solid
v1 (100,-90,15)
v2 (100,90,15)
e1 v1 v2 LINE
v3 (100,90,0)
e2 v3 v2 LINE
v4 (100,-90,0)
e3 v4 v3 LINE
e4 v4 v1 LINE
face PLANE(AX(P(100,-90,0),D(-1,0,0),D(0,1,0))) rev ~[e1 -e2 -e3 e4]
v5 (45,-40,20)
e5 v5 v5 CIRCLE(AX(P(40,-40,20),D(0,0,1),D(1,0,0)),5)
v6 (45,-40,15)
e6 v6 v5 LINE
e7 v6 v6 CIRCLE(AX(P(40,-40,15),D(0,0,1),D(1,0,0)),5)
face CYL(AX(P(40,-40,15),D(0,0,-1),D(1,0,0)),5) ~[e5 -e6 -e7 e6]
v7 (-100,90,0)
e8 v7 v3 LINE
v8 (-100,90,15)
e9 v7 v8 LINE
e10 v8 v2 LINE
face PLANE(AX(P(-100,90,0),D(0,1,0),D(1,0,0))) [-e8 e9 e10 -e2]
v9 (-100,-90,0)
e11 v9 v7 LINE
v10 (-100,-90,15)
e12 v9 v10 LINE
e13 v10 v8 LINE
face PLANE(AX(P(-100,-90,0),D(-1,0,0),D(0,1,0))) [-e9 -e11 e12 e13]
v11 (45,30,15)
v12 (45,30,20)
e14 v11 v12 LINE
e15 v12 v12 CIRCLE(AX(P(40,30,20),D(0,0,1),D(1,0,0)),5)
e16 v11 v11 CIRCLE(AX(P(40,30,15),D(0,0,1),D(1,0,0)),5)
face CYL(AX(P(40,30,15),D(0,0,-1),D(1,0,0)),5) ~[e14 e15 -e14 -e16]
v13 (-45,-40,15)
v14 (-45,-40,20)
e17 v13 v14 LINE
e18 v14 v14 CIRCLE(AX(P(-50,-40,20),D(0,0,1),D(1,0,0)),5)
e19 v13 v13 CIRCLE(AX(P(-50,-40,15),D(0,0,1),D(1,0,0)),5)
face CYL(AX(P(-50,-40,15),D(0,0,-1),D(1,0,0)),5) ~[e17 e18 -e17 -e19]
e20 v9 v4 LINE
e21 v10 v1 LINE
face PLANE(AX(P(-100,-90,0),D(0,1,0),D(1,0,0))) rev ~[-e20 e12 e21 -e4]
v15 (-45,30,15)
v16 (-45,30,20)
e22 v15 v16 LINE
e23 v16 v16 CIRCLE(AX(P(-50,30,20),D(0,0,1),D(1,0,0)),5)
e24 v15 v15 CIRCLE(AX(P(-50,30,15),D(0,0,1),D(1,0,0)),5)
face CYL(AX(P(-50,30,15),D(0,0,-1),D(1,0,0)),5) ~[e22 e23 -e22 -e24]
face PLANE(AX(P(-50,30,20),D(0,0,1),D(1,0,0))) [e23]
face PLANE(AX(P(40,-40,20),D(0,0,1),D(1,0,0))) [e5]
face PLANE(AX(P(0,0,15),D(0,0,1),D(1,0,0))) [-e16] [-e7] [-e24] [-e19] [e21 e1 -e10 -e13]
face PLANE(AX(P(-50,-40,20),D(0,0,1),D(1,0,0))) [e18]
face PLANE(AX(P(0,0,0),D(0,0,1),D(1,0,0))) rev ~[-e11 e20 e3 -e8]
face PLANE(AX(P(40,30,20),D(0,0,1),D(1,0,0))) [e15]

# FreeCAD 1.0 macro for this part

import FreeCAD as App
import Part
import Sketcher


def add_polygon(sketch, points):
    """Adds a closed chain of lines whose ends are joined by coincident constraints."""
    first, n = sketch.GeometryCount, len(points)
    for a, b in zip(points, points[1:] + points[:1]):
        sketch.addGeometry(Part.LineSegment(App.Vector(*a, 0), App.Vector(*b, 0)), False)
    for i in range(n):
        sketch.addConstraint(Sketcher.Constraint("Coincident", first + i, 2, first + (i + 1) % n, 1))

doc = App.newDocument("Part")
params = doc.addObject("Spreadsheet::Sheet", "Params")
for row, (alias, value) in enumerate([
    ("sketch1_width", "200 mm"),
    ("sketch1_height", "180 mm"),
    ("pad1_length", "15 mm"),
    ("sketch2_diameter", "10 mm"),
    ("pad2_length", "5 mm"),
], start=1):
    params.set(f"A{row}", alias)
    params.set(f"B{row}", "=" + value)
    params.setAlias(f"B{row}", alias)

body = doc.addObject("PartDesign::Body", "Body")

# Sketch on XY plane
sketch1 = body.newObject("Sketcher::SketchObject", "Sketch")
sketch1.AttachmentSupport = (doc.getObject("XY_Plane"), [""])
sketch1.MapMode = "FlatFace"
add_polygon(sketch1, [(-100, 90), (-100, -90), (100, -90), (100, 90)])  # lines 0-3
sketch1.addConstraint(Sketcher.Constraint("Vertical", 0))
sketch1.addConstraint(Sketcher.Constraint("Horizontal", 1))
sketch1.addConstraint(Sketcher.Constraint("Vertical", 2))
sketch1.addConstraint(Sketcher.Constraint("Horizontal", 3))
sketch1.addConstraint(Sketcher.Constraint("Symmetric", 0, 2, 2, 2, -1, 1))
sketch1.addConstraint(Sketcher.Constraint("DistanceX", 1, 1, 1, 2, 200.0))
sketch1.addConstraint(Sketcher.Constraint("DistanceY", 0, 2, 0, 1, 180.0))
sketch1.setExpression("Constraints[9]", "Params.sketch1_width")
sketch1.setExpression("Constraints[10]", "Params.sketch1_height")
pad1 = body.newObject("PartDesign::Pad", "Pad")
pad1.Profile = sketch1
pad1.setExpression("Length", "Params.pad1_length")

# Sketch on XY plane
sketch2 = body.newObject("Sketcher::SketchObject", "Sketch001")
sketch2.AttachmentSupport = (doc.getObject("XY_Plane"), [""])
sketch2.MapMode = "FlatFace"
sketch2.AttachmentOffset = App.Placement(App.Vector(0, 0, 15), App.Rotation())
sketch2.addGeometry(Part.Circle(App.Vector(-50, -40, 0), App.Vector(0, 0, 1), 5), False)
sketch2.addGeometry(Part.Circle(App.Vector(40, -40, 0), App.Vector(0, 0, 1), 5), False)
sketch2.addGeometry(Part.Circle(App.Vector(-50, 30, 0), App.Vector(0, 0, 1), 5), False)
sketch2.addGeometry(Part.Circle(App.Vector(40, 30, 0), App.Vector(0, 0, 1), 5), False)
sketch2.addConstraint(Sketcher.Constraint("Equal", 0, 1))
sketch2.addConstraint(Sketcher.Constraint("Equal", 1, 2))
sketch2.addConstraint(Sketcher.Constraint("Equal", 2, 3))
sketch2.addConstraint(Sketcher.Constraint("Horizontal", 0, 3, 1, 3))
sketch2.addConstraint(Sketcher.Constraint("Horizontal", 2, 3, 3, 3))
sketch2.addConstraint(Sketcher.Constraint("Vertical", 0, 3, 2, 3))
sketch2.addConstraint(Sketcher.Constraint("Vertical", 1, 3, 3, 3))
sketch2.addConstraint(Sketcher.Constraint("Diameter", 0, 10.0))
sketch2.addConstraint(Sketcher.Constraint("DistanceX", 0, 3, -1, 1, 50.0))
sketch2.addConstraint(Sketcher.Constraint("DistanceY", 0, 3, -1, 1, 40.0))
sketch2.addConstraint(Sketcher.Constraint("DistanceX", -1, 1, 1, 3, 40.0))
sketch2.addConstraint(Sketcher.Constraint("DistanceY", -1, 1, 2, 3, 30.0))
sketch2.setExpression("Constraints[7]", "Params.sketch2_diameter")
pad2 = body.newObject("PartDesign::Pad", "Pad001")
pad2.Profile = sketch2
pad2.setExpression("Length", "Params.pad2_length")

doc.recompute()
